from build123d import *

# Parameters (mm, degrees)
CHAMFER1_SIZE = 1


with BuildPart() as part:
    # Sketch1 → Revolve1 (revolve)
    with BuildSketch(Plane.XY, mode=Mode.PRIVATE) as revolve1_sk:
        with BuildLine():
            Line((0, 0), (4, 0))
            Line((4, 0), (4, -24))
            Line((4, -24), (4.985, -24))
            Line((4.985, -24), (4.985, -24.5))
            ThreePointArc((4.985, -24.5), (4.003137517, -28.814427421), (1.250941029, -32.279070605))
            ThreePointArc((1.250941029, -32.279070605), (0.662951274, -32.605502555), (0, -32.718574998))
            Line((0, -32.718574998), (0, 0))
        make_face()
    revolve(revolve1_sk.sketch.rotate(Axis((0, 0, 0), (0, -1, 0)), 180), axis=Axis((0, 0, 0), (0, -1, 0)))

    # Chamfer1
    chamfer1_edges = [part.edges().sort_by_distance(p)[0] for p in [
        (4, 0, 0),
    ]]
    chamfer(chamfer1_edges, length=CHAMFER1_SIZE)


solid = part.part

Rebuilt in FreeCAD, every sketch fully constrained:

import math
import FreeCAD as App
import Part
import Sketcher
from FreeCAD import Vector


def edges_at(feature, points):
    """Names of the edges that pass closest to the given points."""
    edges = feature.Shape.Edges
    near = lambda p: min(range(len(edges)), key=lambda i: edges[i].distToShape(Part.Vertex(*p))[0])
    return sorted({f"Edge{near(p) + 1}" for p in points})

doc = App.newDocument("Part")
body = doc.addObject("PartDesign::Body", "Body")

sketch1 = body.newObject("Sketcher::SketchObject", "Sketch")
sketch1.AttachmentSupport = (doc.getObject("XY_Plane"), [""])
sketch1.MapMode = "FlatFace"
sketch1.addGeometry(Part.LineSegment(Vector(4, 0, 0), Vector(0, 0, 0)), False)
sketch1.addGeometry(Part.LineSegment(Vector(0, 0, 0), Vector(0, -32.718575, 0)), False)
sketch1.addGeometry(Part.ArcOfCircle(Part.Circle(Vector(0, -30.718575, 0), Vector(0, 0, 1), 2), math.radians(-90), math.radians(-51.28327)), False)
sketch1.addGeometry(Part.ArcOfCircle(Part.Circle(Vector(-4.985, -24.5, 0), Vector(0, 0, 1), 9.97), math.radians(-51.28327), math.radians(0)), False)
sketch1.addGeometry(Part.LineSegment(Vector(4.985, -24.5, 0), Vector(4.985, -24, 0)), False)
sketch1.addGeometry(Part.LineSegment(Vector(4.985, -24, 0), Vector(4, -24, 0)), False)
sketch1.addGeometry(Part.LineSegment(Vector(4, -24, 0), Vector(4, 0, 0)), False)
sketch1.addConstraint(Sketcher.Constraint("Coincident", 0, 2, 1, 1))
sketch1.addConstraint(Sketcher.Constraint("Coincident", 1, 2, 2, 1))
sketch1.addConstraint(Sketcher.Constraint("Tangent", 2, 2, 3, 1))
sketch1.addConstraint(Sketcher.Constraint("Tangent", 3, 2, 4, 1))
sketch1.addConstraint(Sketcher.Constraint("Coincident", 4, 2, 5, 1))
sketch1.addConstraint(Sketcher.Constraint("Coincident", 5, 2, 6, 1))
sketch1.addConstraint(Sketcher.Constraint("Coincident", 6, 2, 0, 1))
sketch1.addConstraint(Sketcher.Constraint("Horizontal", 0))
sketch1.addConstraint(Sketcher.Constraint("Vertical", 1))
sketch1.addConstraint(Sketcher.Constraint("Vertical", 4))
sketch1.addConstraint(Sketcher.Constraint("Horizontal", 5))
sketch1.addConstraint(Sketcher.Constraint("Vertical", 6))
sketch1.addConstraint(Sketcher.Constraint("Coincident", 0, 2, -1, 1))
sketch1.addConstraint(Sketcher.Constraint("PointOnObject", 2, 3, -2))
sketch1.addConstraint(Sketcher.Constraint("Radius", 2, 2.0))
sketch1.addConstraint(Sketcher.Constraint("DistanceX", 0, 2, 0, 1, 4.0))
sketch1.addConstraint(Sketcher.Constraint("DistanceY", 6, 1, 6, 2, 24.0))
sketch1.addConstraint(Sketcher.Constraint("Radius", 3, 9.97))
sketch1.addConstraint(Sketcher.Constraint("DistanceY", 4, 1, 4, 2, 0.5))
sketch1.addConstraint(Sketcher.Constraint("DistanceX", 5, 2, 5, 1, 0.985))
revolution = body.newObject("PartDesign::Revolution", "Revolution")
revolution.Profile = sketch1
revolution.ReferenceAxis = (sketch1, ["V_Axis"])
revolution.Angle = 360
doc.recompute()

chamfer = body.newObject("PartDesign::Chamfer", "Chamfer")
chamfer.Base = (revolution, edges_at(revolution, [(4, 0, 0)]))
chamfer.Size = 1

doc.recompute()
